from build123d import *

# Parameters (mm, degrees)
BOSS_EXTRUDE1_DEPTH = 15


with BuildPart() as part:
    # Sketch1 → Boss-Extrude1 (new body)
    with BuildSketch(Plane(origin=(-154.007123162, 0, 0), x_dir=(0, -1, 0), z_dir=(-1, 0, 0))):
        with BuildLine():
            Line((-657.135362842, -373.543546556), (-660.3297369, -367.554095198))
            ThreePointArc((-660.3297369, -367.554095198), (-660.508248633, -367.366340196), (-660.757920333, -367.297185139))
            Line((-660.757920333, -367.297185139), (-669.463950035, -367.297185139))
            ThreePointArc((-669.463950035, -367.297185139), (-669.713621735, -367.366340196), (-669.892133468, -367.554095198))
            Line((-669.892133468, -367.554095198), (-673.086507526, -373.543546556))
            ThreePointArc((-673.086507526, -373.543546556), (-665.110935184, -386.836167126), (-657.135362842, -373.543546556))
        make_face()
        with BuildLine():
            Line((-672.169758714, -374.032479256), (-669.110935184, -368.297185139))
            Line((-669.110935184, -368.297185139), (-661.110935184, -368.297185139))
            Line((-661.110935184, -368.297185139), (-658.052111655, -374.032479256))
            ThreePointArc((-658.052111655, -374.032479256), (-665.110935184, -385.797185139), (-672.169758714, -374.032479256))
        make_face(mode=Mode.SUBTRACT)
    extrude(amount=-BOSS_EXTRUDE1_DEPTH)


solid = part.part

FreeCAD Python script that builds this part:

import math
import FreeCAD as App
import Part
import Sketcher
from FreeCAD import Vector
Q = App.Units.Quantity

doc = App.newDocument("Part")
body = doc.addObject("PartDesign::Body", "Body")

# Sketch on YZ plane
sketch1 = doc.addObject("Sketcher::SketchObject", "Sketch")
body.addObject(sketch1)
sketch1.AttachmentSupport = (doc.YZ_Plane, [""])
sketch1.MapMode = "FlatFace"
sketch1.AttachmentOffset = App.Placement(Vector(0, 0, -154.007123), App.Rotation())
sketch1.addGeometry([
    Part.LineSegment(Vector(657.14, -373.54, 0), Vector(660.33, -367.55, 0)),  # 0
    Part.ArcOfCircle(Part.Circle(Vector(660.76, -367.78, 0), Vector(0, 0, 1), 0.49), math.radians(90), math.radians(152)),  # 1
    Part.LineSegment(Vector(660.76, -367.3, 0), Vector(669.46, -367.3, 0)),  # 2
    Part.ArcOfCircle(Part.Circle(Vector(669.46, -367.78, 0), Vector(0, 0, 1), 0.49), math.radians(28), math.radians(90)),  # 3
    Part.LineSegment(Vector(669.89, -367.55, 0), Vector(673.09, -373.54, 0)),  # 4
    Part.ArcOfCircle(Part.Circle(Vector(665.11, -377.8, 0), Vector(0, 0, 1), 9.04), math.radians(152), math.radians(388)),  # 5
    Part.ArcOfCircle(Part.Circle(Vector(665.11, -377.8, 0), Vector(0, 0, 1), 8), math.radians(152), math.radians(388)),  # 6
    Part.LineSegment(Vector(672.17, -374.03, 0), Vector(669.11, -368.3, 0)),  # 7
    Part.LineSegment(Vector(669.11, -368.3, 0), Vector(661.11, -368.3, 0)),  # 8
    Part.LineSegment(Vector(661.11, -368.3, 0), Vector(658.05, -374.03, 0)),  # 9
], False)
sketch1.addConstraint([
    Sketcher.Constraint("Tangent", 0, 2, 1, 2),
    Sketcher.Constraint("Tangent", 1, 1, 2, 1),
    Sketcher.Constraint("Tangent", 2, 2, 3, 2),
    Sketcher.Constraint("Tangent", 3, 1, 4, 1),
    Sketcher.Constraint("Tangent", 4, 2, 5, 2),
    Sketcher.Constraint("Tangent", 5, 1, 0, 1),
    Sketcher.Constraint("Tangent", 6, 2, 7, 1),
    Sketcher.Constraint("Coincident", 7, 2, 8, 1),
    Sketcher.Constraint("Coincident", 8, 2, 9, 1),
    Sketcher.Constraint("Tangent", 9, 2, 6, 1),
    Sketcher.Constraint("Horizontal", 2),
    Sketcher.Constraint("Horizontal", 8),
    Sketcher.Constraint("Coincident", 6, 3, 5, 3),
    Sketcher.Constraint("Equal", 1, 3),
    Sketcher.Constraint("Parallel", 4, 7),
    Sketcher.Constraint("Parallel", 0, 9),
    Sketcher.Constraint("Horizontal", 0, 2, 3, 1),
    Sketcher.Constraint("Radius", 6, Q("8 mm")),
    Sketcher.Constraint("DistanceX", 8, 2, 8, 1, Q("8 mm")),
    Sketcher.Constraint("DistanceY", 7, 2, 2, 2, Q("1 mm")),
    Sketcher.Constraint("Distance", 7, Q("6.5 mm")),
    Sketcher.Constraint("Radius", 5, Q("9.038982 mm")),
    Sketcher.Constraint("Radius", 1, Q("0.485275 mm")),
    Sketcher.Constraint("DistanceX", -1, 1, 1, 3, Q("660.75792 mm")),
    Sketcher.Constraint("DistanceY", 1, 3, -1, 1, Q("367.78246 mm")),
])
pad1 = doc.addObject("PartDesign::Pad", "Pad")
body.addObject(pad1)
pad1.Profile = sketch1
pad1.Length = 15

doc.recompute()
